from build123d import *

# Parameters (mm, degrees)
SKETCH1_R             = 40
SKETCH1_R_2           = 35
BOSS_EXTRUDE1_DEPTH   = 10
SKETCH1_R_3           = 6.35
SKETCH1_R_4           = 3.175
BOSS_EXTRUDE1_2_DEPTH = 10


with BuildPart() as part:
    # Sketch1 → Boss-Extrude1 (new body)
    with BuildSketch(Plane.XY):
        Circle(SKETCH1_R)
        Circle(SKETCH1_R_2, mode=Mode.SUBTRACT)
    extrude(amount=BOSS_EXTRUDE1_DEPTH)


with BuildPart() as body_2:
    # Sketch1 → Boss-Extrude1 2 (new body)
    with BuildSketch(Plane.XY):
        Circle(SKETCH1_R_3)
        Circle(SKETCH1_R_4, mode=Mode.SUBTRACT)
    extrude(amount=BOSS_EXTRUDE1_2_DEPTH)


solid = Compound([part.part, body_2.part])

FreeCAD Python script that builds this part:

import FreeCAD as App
import Part
import Sketcher

V = App.Vector

doc = App.newDocument("Part")
body = doc.addObject("PartDesign::Body", "Body")

# Sketch on XY plane
sketch1 = doc.addObject("Sketcher::SketchObject", "Sketch")
body.addObject(sketch1)
sketch1.AttachmentSupport = (doc.XY_Plane, [""])
sketch1.MapMode = "FlatFace"
sketch1.addGeometry(Part.Circle(V(0, 0, 0), V(0, 0, 1), 40), False)
sketch1.addGeometry(Part.Circle(V(0, 0, 0), V(0, 0, 1), 35), False)
sketch1.addConstraint(Sketcher.Constraint("Coincident", 0, 3, -1, 1))
sketch1.addConstraint(Sketcher.Constraint("Coincident", 1, 3, -1, 1))
sketch1.addConstraint(Sketcher.Constraint("Diameter", 0, 80.0))
sketch1.addConstraint(Sketcher.Constraint("Diameter", 1, 70.0))
pad1 = doc.addObject("PartDesign::Pad", "Pad")
body.addObject(pad1)
pad1.Profile = sketch1
pad1.Length = 10
body2 = doc.addObject("PartDesign::Body", "Body001")

# Sketch on XY plane
sketch2 = doc.addObject("Sketcher::SketchObject", "Sketch001")
body2.addObject(sketch2)
sketch2.AttachmentSupport = (doc.getObject("XY_Plane001"), [""])
sketch2.MapMode = "FlatFace"
sketch2.addGeometry(Part.Circle(V(0, 0, 0), V(0, 0, 1), 6.35), False)
sketch2.addGeometry(Part.Circle(V(0, 0, 0), V(0, 0, 1), 3.175), False)
sketch2.addConstraint(Sketcher.Constraint("Coincident", 0, 3, -1, 1))
sketch2.addConstraint(Sketcher.Constraint("Coincident", 1, 3, -1, 1))
sketch2.addConstraint(Sketcher.Constraint("Diameter", 0, 12.7))
sketch2.addConstraint(Sketcher.Constraint("Diameter", 1, 6.35))
pad2 = doc.addObject("PartDesign::Pad", "Pad001")
body2.addObject(pad2)
pad2.Profile = sketch2
pad2.Length = 10

doc.recompute()
